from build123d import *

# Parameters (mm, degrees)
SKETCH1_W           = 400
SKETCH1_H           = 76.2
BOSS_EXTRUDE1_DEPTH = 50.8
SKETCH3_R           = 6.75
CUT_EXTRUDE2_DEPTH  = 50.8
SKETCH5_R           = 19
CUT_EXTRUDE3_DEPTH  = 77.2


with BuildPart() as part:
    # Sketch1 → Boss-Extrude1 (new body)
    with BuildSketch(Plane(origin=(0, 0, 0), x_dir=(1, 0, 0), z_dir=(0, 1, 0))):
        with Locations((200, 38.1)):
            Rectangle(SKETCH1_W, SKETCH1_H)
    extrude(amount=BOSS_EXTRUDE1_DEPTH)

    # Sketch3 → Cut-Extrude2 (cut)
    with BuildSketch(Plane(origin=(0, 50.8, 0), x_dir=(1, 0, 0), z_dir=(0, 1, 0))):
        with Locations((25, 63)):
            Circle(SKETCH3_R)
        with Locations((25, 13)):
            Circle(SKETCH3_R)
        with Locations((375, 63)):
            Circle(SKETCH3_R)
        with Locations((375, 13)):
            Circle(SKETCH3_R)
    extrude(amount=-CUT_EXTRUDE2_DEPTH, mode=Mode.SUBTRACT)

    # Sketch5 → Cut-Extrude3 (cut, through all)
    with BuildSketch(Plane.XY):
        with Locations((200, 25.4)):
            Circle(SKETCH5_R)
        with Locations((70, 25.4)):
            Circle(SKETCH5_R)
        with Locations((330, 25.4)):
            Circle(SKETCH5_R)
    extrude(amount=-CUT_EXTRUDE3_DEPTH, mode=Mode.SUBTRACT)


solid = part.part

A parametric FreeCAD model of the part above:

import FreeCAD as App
import Part
import Sketcher
from FreeCAD import Vector
Q = App.Units.Quantity

doc = App.newDocument("Part")
body = doc.addObject("PartDesign::Body", "Body")

# Sketch on XZ plane
sketch1 = body.newObject("Sketcher::SketchObject", "Sketch")
sketch1.AttachmentSupport = (doc.getObject("XZ_Plane"), [""])
sketch1.MapMode = "FlatFace"
sketch1.addGeometry(Part.LineSegment(Vector(0, -76, 0), Vector(0, 0, 0)), False)
sketch1.addGeometry(Part.LineSegment(Vector(0, 0, 0), Vector(400, 0, 0)), False)
sketch1.addGeometry(Part.LineSegment(Vector(400, 0, 0), Vector(400, -76, 0)), False)
sketch1.addGeometry(Part.LineSegment(Vector(400, -76, 0), Vector(0, -76, 0)), False)
sketch1.addConstraint(Sketcher.Constraint("Coincident", 0, 2, 1, 1))
sketch1.addConstraint(Sketcher.Constraint("Coincident", 1, 2, 2, 1))
sketch1.addConstraint(Sketcher.Constraint("Coincident", 2, 2, 3, 1))
sketch1.addConstraint(Sketcher.Constraint("Coincident", 3, 2, 0, 1))
sketch1.addConstraint(Sketcher.Constraint("Vertical", 0))
sketch1.addConstraint(Sketcher.Constraint("Horizontal", 1))
sketch1.addConstraint(Sketcher.Constraint("Vertical", 2))
sketch1.addConstraint(Sketcher.Constraint("Horizontal", 3))
sketch1.addConstraint(Sketcher.Constraint("Coincident", 0, 2, -1, 1))
sketch1.addConstraint(Sketcher.Constraint("DistanceX", 1, 1, 1, 2, Q("400 mm")))
sketch1.addConstraint(Sketcher.Constraint("DistanceY", 0, 1, 0, 2, Q("76.2 mm")))
pad1 = body.newObject("PartDesign::Pad", "Pad")
pad1.Profile = sketch1
pad1.Length = 50.8
pad1.Reversed = True

# Sketch on XZ plane
sketch2 = body.newObject("Sketcher::SketchObject", "Sketch001")
sketch2.AttachmentSupport = (doc.getObject("XZ_Plane"), [""])
sketch2.MapMode = "FlatFace"
sketch2.AttachmentOffset = App.Placement(Vector(0, 0, -50.8), App.Rotation())
sketch2.addGeometry(Part.Circle(Vector(25, -63, 0), Vector(0, 0, 1), 7), False)
sketch2.addGeometry(Part.Circle(Vector(25, -13, 0), Vector(0, 0, 1), 7), False)
sketch2.addGeometry(Part.Circle(Vector(375, -63, 0), Vector(0, 0, 1), 7), False)
sketch2.addGeometry(Part.Circle(Vector(375, -13, 0), Vector(0, 0, 1), 7), False)
sketch2.addConstraint(Sketcher.Constraint("Equal", 0, 1))
sketch2.addConstraint(Sketcher.Constraint("Equal", 1, 2))
sketch2.addConstraint(Sketcher.Constraint("Equal", 2, 3))
sketch2.addConstraint(Sketcher.Constraint("Horizontal", 0, 3, 2, 3))
sketch2.addConstraint(Sketcher.Constraint("Horizontal", 1, 3, 3, 3))
sketch2.addConstraint(Sketcher.Constraint("Vertical", 0, 3, 1, 3))
sketch2.addConstraint(Sketcher.Constraint("Vertical", 2, 3, 3, 3))
sketch2.addConstraint(Sketcher.Constraint("Diameter", 0, Q("13.5 mm")))
sketch2.addConstraint(Sketcher.Constraint("DistanceX", -1, 1, 0, 3, Q("25 mm")))
sketch2.addConstraint(Sketcher.Constraint("DistanceY", 0, 3, -1, 1, Q("63 mm")))
sketch2.addConstraint(Sketcher.Constraint("DistanceY", 1, 3, -1, 1, Q("13 mm")))
sketch2.addConstraint(Sketcher.Constraint("DistanceX", -1, 1, 2, 3, Q("375 mm")))
pocket1 = body.newObject("PartDesign::Pocket", "Pocket")
pocket1.Profile = sketch2
pocket1.Length = 50.8
pocket1.Reversed = True

# Sketch on XY plane
sketch3 = body.newObject("Sketcher::SketchObject", "Sketch002")
sketch3.AttachmentSupport = (doc.getObject("XY_Plane"), [""])
sketch3.MapMode = "FlatFace"
sketch3.addGeometry(Part.Circle(Vector(200, 25, 0), Vector(0, 0, 1), 19), False)
sketch3.addGeometry(Part.Circle(Vector(70, 25, 0), Vector(0, 0, 1), 19), False)
sketch3.addGeometry(Part.Circle(Vector(330, 25, 0), Vector(0, 0, 1), 19), False)
sketch3.addConstraint(Sketcher.Constraint("Equal", 0, 1))
sketch3.addConstraint(Sketcher.Constraint("Equal", 1, 2))
sketch3.addConstraint(Sketcher.Constraint("Horizontal", 0, 3, 1, 3))
sketch3.addConstraint(Sketcher.Constraint("Horizontal", 1, 3, 2, 3))
sketch3.addConstraint(Sketcher.Constraint("Diameter", 0, Q("38 mm")))
sketch3.addConstraint(Sketcher.Constraint("DistanceX", -1, 1, 0, 3, Q("200 mm")))
sketch3.addConstraint(Sketcher.Constraint("DistanceX", -1, 1, 1, 3, Q("70 mm")))
sketch3.addConstraint(Sketcher.Constraint("DistanceX", -1, 1, 2, 3, Q("330 mm")))
sketch3.addConstraint(Sketcher.Constraint("DistanceY", -1, 1, 0, 3, Q("25.4 mm")))
pocket2 = body.newObject("PartDesign::Pocket", "Pocket001")
pocket2.Profile = sketch3
pocket2.Type = "ThroughAll"

doc.recompute()
